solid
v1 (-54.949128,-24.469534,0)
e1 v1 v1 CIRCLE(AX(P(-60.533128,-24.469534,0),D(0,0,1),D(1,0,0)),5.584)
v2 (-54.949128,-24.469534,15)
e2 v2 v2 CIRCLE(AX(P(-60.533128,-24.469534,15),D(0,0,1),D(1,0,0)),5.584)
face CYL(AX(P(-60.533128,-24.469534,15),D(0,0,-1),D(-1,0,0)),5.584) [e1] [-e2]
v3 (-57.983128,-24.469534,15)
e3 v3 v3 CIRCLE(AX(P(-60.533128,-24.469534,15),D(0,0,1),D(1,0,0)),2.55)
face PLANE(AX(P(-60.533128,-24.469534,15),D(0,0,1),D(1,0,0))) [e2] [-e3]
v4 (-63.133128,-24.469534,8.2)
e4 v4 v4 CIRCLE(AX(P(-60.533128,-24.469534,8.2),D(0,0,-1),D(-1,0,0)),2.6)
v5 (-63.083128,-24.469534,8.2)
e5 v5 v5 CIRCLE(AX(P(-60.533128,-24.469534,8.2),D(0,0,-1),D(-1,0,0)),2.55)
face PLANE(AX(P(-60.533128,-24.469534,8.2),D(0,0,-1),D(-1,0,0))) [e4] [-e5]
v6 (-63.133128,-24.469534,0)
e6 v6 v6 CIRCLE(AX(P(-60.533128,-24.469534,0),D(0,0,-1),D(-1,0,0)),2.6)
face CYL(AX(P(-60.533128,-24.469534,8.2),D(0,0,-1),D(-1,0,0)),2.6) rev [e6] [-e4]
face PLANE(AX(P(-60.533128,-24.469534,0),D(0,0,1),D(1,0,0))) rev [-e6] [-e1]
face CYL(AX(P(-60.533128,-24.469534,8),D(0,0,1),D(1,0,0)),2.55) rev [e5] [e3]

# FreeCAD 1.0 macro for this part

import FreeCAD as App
import Part
import Sketcher
from FreeCAD import Vector
Q = App.Units.Quantity

doc = App.newDocument("Part")
params = doc.addObject("Spreadsheet::Sheet", "Params")
for row, (alias, value) in enumerate([
    ("pad1_length", "15 mm"),
    ("sketch2_diameter", "5.2 mm"),
    ("pocket1_length", "8.2 mm"),
    ("sketch3_diameter", "5.1 mm"),
    ("pocket2_length", "7 mm"),
], start=1):
    params.set(f"A{row}", alias)
    params.set(f"B{row}", "=" + value)
    params.setAlias(f"B{row}", alias)

body = doc.addObject("PartDesign::Body", "Body")

sketch1 = doc.addObject("Sketcher::SketchObject", "Sketch")
body.addObject(sketch1)
sketch1.AttachmentSupport = (doc.XY_Plane, [""])
sketch1.MapMode = "FlatFace"
sketch1.addGeometry(Part.Circle(Vector(-61, -24, 0), Vector(0, 0, 1), 6), False)
sketch1.addConstraint([
    Sketcher.Constraint("Diameter", 0, Q("11.168 mm")),
    Sketcher.Constraint("DistanceX", 0, 3, -1, 1, Q("60.533128 mm")),
    Sketcher.Constraint("DistanceY", 0, 3, -1, 1, Q("24.469534 mm")),
])
pad1 = doc.addObject("PartDesign::Pad", "Pad")
body.addObject(pad1)
pad1.Profile = sketch1
pad1.setExpression("Length", "Params.pad1_length")

sketch2 = doc.addObject("Sketcher::SketchObject", "Sketch001")
body.addObject(sketch2)
sketch2.AttachmentSupport = (doc.XY_Plane, [""])
sketch2.MapMode = "FlatFace"
sketch2.addGeometry(Part.Circle(Vector(-60.5, -24.5, 0), Vector(0, 0, 1), 2.6), False)
sketch2.addConstraint([
    Sketcher.Constraint("Diameter", 0, Q("5.2 mm")),
    Sketcher.Constraint("DistanceX", 0, 3, -1, 1, Q("60.533128 mm")),
    Sketcher.Constraint("DistanceY", 0, 3, -1, 1, Q("24.469534 mm")),
])
sketch2.setExpression("Constraints[0]", "Params.sketch2_diameter")
pocket1 = doc.addObject("PartDesign::Pocket", "Pocket")
body.addObject(pocket1)
pocket1.Profile = sketch2
pocket1.setExpression("Length", "Params.pocket1_length")
pocket1.Reversed = True

sketch3 = doc.addObject("Sketcher::SketchObject", "Sketch002")
body.addObject(sketch3)
sketch3.AttachmentSupport = (doc.XY_Plane, [""])
sketch3.MapMode = "FlatFace"
sketch3.AttachmentOffset = App.Placement(Vector(0, 0, 15), App.Rotation())
sketch3.addGeometry(Part.Circle(Vector(-60.5, -24.5, 0), Vector(0, 0, 1), 2.5), False)
sketch3.addConstraint([
    Sketcher.Constraint("Diameter", 0, Q("5.1 mm")),
    Sketcher.Constraint("DistanceX", 0, 3, -1, 1, Q("60.533128 mm")),
    Sketcher.Constraint("DistanceY", 0, 3, -1, 1, Q("24.469534 mm")),
])
sketch3.setExpression("Constraints[0]", "Params.sketch3_diameter")
pocket2 = doc.addObject("PartDesign::Pocket", "Pocket001")
body.addObject(pocket2)
pocket2.Profile = sketch3
pocket2.setExpression("Length", "Params.pocket2_length")

doc.recompute()
